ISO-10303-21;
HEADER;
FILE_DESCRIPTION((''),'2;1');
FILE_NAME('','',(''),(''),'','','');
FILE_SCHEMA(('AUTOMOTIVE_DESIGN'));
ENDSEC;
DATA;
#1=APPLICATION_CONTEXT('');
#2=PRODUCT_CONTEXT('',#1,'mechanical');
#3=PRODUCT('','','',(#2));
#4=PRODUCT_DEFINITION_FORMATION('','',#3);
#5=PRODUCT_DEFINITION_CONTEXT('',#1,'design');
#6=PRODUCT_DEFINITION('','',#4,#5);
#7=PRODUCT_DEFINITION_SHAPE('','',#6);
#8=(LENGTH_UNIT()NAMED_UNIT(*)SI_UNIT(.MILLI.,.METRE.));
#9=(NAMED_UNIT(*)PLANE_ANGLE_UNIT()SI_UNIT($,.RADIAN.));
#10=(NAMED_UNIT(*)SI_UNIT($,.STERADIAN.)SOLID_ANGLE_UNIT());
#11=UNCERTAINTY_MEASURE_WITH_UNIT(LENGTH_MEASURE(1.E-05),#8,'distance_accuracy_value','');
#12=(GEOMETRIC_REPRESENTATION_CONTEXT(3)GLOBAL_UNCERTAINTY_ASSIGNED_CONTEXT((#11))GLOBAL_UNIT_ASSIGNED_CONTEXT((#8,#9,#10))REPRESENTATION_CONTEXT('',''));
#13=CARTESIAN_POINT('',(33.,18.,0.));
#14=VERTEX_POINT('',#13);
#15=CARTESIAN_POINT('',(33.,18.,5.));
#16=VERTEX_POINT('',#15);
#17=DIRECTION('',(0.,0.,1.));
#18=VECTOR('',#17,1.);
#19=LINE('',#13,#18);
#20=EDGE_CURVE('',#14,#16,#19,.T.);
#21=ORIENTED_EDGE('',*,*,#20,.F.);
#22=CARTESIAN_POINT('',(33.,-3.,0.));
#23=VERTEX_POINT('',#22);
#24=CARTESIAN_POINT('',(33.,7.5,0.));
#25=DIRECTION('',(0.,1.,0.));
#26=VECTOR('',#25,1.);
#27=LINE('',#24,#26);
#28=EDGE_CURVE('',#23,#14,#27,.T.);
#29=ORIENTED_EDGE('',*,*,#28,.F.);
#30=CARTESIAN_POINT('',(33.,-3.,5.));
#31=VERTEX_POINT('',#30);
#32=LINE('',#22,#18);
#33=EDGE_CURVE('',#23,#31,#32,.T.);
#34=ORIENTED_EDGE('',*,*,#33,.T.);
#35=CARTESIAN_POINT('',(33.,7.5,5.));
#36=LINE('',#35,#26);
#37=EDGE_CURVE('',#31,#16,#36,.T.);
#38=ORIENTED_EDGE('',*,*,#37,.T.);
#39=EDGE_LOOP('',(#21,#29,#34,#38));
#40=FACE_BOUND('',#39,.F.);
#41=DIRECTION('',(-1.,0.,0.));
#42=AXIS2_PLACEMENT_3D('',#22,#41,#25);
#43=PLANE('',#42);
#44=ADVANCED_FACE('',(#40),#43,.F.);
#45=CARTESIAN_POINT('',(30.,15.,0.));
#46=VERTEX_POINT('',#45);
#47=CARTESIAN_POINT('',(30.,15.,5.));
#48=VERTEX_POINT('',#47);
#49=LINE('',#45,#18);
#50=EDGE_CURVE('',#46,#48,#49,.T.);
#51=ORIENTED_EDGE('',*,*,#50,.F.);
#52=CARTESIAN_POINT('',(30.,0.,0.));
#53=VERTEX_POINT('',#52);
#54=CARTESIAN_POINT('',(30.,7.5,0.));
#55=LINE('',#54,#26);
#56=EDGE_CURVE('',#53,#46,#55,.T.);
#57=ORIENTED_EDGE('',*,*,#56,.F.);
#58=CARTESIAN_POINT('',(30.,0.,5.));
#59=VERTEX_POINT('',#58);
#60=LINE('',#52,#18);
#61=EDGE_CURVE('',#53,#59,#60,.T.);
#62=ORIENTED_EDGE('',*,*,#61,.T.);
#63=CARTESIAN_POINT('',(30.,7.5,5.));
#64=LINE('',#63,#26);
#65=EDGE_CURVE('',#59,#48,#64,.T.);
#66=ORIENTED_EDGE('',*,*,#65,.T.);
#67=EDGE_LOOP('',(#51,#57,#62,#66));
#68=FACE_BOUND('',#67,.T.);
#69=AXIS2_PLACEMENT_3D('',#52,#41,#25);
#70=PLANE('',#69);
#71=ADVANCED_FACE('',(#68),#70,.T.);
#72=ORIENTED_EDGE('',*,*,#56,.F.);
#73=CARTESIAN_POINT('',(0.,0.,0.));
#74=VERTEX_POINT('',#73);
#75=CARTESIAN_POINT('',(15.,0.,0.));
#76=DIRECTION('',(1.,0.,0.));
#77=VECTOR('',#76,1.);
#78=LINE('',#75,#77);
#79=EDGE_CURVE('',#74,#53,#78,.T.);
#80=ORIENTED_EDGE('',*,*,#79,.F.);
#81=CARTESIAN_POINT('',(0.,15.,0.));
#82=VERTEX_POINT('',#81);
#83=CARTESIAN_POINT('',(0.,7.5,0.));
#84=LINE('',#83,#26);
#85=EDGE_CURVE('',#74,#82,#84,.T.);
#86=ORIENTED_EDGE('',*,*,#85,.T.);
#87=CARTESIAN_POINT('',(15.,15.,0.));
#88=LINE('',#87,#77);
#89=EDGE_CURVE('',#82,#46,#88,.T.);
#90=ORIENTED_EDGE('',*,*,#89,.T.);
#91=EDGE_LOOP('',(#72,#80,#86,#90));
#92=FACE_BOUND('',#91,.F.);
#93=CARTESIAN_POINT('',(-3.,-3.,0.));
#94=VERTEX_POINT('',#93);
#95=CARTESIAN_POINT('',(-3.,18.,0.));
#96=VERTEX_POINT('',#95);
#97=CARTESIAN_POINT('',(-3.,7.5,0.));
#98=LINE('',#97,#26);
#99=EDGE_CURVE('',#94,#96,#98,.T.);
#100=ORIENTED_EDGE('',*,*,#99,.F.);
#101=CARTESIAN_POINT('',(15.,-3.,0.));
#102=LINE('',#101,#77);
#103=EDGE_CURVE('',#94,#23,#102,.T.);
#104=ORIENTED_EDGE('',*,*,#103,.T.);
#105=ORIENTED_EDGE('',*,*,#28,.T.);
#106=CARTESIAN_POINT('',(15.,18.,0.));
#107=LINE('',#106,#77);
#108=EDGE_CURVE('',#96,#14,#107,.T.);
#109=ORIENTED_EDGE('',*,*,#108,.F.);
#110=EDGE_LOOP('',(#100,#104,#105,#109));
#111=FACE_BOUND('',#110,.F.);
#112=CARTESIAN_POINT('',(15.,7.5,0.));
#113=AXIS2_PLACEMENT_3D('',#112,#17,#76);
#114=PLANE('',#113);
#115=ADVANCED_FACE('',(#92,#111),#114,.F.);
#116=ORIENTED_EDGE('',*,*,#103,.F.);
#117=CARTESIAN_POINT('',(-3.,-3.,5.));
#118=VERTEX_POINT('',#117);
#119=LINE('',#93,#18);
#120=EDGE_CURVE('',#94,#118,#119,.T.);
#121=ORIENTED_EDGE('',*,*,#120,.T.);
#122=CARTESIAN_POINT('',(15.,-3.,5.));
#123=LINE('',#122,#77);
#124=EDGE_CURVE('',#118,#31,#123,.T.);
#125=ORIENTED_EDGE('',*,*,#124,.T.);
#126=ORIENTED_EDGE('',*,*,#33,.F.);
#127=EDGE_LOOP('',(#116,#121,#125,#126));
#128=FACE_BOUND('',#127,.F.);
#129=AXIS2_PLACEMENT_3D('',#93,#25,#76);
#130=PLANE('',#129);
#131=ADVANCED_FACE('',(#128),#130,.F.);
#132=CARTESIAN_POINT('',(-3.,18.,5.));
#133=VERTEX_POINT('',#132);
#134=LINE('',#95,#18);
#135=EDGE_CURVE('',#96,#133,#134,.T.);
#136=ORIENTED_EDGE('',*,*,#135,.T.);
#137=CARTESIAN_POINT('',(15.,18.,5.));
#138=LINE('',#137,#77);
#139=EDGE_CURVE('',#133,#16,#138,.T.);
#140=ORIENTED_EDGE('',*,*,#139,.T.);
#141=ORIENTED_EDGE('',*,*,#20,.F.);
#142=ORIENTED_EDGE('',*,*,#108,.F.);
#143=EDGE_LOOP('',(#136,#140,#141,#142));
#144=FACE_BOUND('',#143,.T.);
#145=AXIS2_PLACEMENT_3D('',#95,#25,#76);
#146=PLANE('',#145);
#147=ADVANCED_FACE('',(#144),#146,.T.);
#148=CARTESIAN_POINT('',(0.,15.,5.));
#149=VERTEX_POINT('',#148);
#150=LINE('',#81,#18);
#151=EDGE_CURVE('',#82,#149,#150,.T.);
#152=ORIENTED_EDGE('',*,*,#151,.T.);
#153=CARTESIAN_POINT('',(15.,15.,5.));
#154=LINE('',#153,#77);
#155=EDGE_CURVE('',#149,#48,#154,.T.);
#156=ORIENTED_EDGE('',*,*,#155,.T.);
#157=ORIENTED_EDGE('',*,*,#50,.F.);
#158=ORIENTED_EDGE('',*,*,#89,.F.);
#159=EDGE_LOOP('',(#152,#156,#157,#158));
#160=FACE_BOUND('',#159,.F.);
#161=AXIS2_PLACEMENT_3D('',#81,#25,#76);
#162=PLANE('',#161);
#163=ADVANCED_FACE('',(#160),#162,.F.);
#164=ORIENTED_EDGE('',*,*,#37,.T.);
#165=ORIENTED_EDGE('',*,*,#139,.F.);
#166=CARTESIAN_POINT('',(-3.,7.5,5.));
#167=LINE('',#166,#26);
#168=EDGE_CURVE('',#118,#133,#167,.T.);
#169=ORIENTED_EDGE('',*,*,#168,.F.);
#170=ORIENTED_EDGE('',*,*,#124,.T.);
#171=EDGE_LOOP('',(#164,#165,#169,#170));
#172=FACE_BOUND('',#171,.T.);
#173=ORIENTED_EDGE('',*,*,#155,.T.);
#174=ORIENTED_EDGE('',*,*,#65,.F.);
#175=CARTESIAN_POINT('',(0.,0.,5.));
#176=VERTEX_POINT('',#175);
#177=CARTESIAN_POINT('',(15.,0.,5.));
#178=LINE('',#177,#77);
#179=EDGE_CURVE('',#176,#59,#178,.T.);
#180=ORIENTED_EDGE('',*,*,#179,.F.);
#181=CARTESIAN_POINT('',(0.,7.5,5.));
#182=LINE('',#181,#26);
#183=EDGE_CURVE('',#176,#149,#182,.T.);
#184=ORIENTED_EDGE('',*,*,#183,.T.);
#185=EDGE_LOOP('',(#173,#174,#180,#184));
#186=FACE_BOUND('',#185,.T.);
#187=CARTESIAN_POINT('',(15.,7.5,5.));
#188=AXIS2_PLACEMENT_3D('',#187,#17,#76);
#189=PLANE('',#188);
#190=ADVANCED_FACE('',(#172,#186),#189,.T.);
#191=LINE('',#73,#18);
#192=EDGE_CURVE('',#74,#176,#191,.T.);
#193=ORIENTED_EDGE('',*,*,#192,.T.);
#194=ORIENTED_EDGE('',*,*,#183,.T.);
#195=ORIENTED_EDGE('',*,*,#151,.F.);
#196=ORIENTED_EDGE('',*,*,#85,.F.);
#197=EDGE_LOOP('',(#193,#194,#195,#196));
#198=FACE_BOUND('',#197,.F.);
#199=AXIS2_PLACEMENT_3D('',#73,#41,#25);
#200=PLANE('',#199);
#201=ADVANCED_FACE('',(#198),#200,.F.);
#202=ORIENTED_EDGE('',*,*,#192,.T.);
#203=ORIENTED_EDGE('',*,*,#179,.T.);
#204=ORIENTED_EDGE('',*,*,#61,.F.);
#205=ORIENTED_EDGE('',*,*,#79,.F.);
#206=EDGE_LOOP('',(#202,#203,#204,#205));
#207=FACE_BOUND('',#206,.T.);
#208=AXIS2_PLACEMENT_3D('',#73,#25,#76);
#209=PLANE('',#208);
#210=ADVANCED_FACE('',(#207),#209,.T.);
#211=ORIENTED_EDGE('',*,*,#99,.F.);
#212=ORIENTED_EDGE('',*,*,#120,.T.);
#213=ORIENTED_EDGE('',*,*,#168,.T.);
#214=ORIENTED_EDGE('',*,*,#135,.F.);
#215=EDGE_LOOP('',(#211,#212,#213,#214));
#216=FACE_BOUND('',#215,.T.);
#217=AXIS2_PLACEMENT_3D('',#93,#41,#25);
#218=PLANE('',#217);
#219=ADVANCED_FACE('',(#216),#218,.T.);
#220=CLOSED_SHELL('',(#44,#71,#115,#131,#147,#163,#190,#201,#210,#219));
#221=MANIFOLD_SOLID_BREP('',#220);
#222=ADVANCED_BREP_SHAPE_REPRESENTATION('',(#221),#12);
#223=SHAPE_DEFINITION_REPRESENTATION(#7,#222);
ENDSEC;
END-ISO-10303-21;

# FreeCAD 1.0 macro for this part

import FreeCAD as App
import Part
import Sketcher

V = App.Vector


def add_polygon(sketch, points):
    """Adds a closed chain of lines whose ends are joined by coincident constraints."""
    first, n = sketch.GeometryCount, len(points)
    for a, b in zip(points, points[1:] + points[:1]):
        sketch.addGeometry(Part.LineSegment(App.Vector(*a, 0), App.Vector(*b, 0)), False)
    for i in range(n):
        sketch.addConstraint(Sketcher.Constraint("Coincident", first + i, 2, first + (i + 1) % n, 1))

doc = App.newDocument("Part")
body = doc.addObject("PartDesign::Body", "Body")

# Sketch on XY plane
sketch1 = body.newObject("Sketcher::SketchObject", "Sketch")
sketch1.AttachmentSupport = (doc.getObject("XY_Plane"), [""])
sketch1.MapMode = "FlatFace"
add_polygon(sketch1, [(-3, 18), (-3, -3), (33, -3), (33, 18)])  # lines 0-3
add_polygon(sketch1, [(30, 0), (0, 0), (0, 15), (30, 15)])  # lines 4-7
sketch1.addConstraint([
    Sketcher.Constraint("Vertical", 0),
    Sketcher.Constraint("Horizontal", 1),
    Sketcher.Constraint("Vertical", 2),
    Sketcher.Constraint("Horizontal", 3),
    Sketcher.Constraint("Horizontal", 4),
    Sketcher.Constraint("Vertical", 5),
    Sketcher.Constraint("Horizontal", 6),
    Sketcher.Constraint("Vertical", 7),
    Sketcher.Constraint("Coincident", 4, 2, -1, 1),
    Sketcher.Constraint("DistanceX", 1, 1, 1, 2, 36.0),
    Sketcher.Constraint("DistanceX", 4, 2, 4, 1, 30.0),
    Sketcher.Constraint("DistanceY", 0, 2, 0, 1, 21.0),
    Sketcher.Constraint("DistanceY", 5, 1, 5, 2, 15.0),
    Sketcher.Constraint("DistanceX", 0, 2, -1, 1, 3.0),
    Sketcher.Constraint("DistanceY", 0, 2, -1, 1, 3.0),
])
pad1 = body.newObject("PartDesign::Pad", "Pad")
pad1.Profile = sketch1
pad1.Length = 5

doc.recompute()
